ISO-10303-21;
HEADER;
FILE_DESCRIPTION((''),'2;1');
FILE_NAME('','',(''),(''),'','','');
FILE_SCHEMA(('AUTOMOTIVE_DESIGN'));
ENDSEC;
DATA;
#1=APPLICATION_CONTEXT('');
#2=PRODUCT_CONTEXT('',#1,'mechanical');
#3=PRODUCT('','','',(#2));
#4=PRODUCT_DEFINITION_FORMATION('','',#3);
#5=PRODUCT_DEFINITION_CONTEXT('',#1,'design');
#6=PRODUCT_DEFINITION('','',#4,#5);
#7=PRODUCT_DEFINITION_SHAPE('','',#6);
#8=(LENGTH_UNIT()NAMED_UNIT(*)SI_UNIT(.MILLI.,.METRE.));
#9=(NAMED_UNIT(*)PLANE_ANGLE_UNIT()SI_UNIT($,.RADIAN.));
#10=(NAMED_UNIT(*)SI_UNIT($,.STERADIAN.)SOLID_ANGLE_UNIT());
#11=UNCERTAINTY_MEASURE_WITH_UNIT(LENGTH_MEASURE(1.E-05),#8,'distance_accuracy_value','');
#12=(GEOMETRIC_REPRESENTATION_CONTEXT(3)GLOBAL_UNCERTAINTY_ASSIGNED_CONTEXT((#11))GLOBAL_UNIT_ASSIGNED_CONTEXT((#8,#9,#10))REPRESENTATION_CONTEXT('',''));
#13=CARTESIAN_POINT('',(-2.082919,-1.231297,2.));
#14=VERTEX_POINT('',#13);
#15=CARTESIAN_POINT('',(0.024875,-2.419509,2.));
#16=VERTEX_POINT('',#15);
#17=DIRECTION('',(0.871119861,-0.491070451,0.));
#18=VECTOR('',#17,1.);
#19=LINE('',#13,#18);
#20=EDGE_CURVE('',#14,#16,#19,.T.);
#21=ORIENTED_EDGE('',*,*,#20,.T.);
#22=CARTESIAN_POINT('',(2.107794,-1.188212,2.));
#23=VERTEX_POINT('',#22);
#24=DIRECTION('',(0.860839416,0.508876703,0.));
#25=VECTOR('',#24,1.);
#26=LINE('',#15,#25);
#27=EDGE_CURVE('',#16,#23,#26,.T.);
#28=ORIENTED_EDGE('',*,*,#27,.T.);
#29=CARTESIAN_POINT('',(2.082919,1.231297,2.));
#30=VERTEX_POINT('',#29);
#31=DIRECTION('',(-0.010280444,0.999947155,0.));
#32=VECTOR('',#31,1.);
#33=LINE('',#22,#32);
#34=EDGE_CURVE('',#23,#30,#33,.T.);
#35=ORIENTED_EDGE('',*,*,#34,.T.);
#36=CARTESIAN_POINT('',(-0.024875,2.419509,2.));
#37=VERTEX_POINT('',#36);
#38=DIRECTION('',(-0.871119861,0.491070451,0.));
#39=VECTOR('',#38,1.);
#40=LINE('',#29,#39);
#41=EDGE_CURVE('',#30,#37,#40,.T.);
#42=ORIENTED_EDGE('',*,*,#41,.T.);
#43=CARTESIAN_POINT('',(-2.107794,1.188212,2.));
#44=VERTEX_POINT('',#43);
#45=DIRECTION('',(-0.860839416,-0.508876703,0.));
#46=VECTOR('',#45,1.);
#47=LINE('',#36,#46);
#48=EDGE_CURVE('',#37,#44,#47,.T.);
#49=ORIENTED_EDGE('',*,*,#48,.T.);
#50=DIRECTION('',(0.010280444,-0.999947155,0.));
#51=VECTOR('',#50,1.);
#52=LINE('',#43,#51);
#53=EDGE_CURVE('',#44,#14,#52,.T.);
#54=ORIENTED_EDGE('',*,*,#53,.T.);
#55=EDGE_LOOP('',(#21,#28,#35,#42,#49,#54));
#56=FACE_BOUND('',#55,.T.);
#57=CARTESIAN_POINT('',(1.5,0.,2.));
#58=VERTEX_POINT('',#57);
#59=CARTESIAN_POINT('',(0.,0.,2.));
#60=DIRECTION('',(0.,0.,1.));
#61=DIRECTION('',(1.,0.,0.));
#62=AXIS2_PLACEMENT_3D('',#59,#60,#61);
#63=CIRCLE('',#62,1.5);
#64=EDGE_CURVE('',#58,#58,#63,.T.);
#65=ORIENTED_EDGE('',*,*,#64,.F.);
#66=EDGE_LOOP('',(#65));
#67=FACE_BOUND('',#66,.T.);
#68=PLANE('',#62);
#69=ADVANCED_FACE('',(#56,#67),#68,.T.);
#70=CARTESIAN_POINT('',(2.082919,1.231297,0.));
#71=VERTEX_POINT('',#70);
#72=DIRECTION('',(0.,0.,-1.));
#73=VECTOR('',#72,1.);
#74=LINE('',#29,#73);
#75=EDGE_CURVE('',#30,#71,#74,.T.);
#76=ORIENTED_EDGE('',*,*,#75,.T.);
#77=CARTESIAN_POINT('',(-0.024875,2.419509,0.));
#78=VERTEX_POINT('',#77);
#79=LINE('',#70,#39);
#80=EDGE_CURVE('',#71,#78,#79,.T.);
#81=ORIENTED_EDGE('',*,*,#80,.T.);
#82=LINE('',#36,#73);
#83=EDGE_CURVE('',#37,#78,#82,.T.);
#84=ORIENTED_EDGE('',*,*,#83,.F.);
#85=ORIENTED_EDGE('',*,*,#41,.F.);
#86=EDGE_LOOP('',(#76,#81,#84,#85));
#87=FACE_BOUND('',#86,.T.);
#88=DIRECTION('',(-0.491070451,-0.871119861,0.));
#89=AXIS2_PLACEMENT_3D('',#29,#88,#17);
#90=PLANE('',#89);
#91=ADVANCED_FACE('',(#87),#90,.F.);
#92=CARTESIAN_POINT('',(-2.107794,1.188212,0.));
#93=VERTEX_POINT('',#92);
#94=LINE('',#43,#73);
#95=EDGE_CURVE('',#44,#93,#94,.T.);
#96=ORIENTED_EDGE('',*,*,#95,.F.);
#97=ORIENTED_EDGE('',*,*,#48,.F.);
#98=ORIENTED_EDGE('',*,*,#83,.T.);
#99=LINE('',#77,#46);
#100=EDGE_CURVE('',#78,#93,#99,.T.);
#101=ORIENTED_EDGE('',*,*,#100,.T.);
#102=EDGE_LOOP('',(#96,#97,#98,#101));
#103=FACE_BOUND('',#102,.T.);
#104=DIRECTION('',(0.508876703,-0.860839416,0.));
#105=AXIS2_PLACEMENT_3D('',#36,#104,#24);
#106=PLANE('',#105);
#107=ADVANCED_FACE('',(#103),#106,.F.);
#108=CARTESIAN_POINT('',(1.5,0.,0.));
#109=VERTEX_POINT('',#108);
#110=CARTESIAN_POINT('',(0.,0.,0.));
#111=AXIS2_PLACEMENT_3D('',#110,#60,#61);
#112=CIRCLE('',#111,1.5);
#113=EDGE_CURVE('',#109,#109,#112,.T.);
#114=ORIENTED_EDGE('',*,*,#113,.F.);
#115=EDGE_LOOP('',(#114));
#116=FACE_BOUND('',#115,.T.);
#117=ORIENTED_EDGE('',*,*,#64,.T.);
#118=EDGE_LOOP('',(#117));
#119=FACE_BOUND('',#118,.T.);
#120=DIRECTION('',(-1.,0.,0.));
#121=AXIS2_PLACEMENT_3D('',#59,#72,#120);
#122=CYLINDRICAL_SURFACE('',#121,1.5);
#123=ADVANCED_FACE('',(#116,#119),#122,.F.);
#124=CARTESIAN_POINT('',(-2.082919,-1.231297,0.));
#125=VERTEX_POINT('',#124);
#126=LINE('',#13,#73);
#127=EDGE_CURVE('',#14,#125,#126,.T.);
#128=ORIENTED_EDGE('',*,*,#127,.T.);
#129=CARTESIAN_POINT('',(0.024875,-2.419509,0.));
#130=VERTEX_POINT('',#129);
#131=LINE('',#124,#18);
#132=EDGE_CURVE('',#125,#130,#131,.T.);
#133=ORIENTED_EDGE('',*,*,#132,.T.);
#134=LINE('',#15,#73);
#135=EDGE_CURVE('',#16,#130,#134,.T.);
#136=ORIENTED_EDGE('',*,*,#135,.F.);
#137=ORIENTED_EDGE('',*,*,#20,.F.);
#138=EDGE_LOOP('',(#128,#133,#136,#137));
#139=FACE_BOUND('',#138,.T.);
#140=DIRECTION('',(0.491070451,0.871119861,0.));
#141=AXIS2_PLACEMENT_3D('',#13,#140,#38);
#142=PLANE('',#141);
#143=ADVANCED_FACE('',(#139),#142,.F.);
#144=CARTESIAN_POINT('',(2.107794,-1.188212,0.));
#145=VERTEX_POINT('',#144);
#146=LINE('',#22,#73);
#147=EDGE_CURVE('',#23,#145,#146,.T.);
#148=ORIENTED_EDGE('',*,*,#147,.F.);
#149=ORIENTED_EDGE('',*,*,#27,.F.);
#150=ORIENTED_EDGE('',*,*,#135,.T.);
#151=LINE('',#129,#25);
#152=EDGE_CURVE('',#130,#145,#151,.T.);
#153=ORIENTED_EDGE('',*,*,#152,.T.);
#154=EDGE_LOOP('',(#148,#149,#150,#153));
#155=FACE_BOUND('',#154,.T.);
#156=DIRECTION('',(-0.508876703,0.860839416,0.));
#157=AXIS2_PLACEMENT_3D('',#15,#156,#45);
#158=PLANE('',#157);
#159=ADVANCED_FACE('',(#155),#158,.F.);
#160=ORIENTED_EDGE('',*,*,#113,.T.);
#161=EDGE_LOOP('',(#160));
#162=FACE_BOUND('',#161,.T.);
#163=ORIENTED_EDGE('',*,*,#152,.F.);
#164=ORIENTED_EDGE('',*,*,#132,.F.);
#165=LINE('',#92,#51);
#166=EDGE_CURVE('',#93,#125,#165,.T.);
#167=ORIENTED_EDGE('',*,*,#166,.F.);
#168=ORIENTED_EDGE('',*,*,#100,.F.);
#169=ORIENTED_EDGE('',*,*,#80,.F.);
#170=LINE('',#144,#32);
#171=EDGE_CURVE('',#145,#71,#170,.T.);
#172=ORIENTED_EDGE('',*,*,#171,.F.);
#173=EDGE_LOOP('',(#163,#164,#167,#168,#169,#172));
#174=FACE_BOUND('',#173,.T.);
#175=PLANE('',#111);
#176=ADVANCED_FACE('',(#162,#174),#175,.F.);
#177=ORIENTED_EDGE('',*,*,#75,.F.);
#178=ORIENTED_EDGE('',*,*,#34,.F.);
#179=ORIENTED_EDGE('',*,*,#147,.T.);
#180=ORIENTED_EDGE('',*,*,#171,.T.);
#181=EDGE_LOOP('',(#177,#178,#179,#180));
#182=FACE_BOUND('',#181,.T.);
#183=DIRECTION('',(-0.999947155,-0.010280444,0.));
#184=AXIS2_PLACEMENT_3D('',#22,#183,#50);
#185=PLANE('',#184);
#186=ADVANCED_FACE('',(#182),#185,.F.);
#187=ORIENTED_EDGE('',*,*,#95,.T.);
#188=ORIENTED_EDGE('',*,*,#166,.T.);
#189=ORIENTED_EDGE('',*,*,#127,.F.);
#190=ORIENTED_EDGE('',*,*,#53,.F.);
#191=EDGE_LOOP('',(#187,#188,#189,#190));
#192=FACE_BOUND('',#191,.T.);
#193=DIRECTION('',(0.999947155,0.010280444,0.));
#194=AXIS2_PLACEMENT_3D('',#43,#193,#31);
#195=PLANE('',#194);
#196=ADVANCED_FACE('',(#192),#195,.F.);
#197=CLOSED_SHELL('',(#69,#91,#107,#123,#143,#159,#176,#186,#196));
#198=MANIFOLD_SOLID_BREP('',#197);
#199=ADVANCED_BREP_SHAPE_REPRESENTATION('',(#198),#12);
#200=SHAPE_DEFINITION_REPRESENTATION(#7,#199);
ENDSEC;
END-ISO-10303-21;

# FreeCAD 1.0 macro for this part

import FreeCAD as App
import Part
import Sketcher
from FreeCAD import Vector
Q = App.Units.Quantity


def add_polygon(sketch, points):
    """Adds a closed chain of lines whose ends are joined by coincident constraints."""
    first, n = sketch.GeometryCount, len(points)
    for a, b in zip(points, points[1:] + points[:1]):
        sketch.addGeometry(Part.LineSegment(App.Vector(*a, 0), App.Vector(*b, 0)), False)
    for i in range(n):
        sketch.addConstraint(Sketcher.Constraint("Coincident", first + i, 2, first + (i + 1) % n, 1))

doc = App.newDocument("Part")
body = doc.addObject("PartDesign::Body", "Body")

# Sketch on XY plane
sketch1 = body.newObject("Sketcher::SketchObject", "Sketch")
sketch1.AttachmentSupport = (doc.getObject("XY_Plane"), [""])
sketch1.MapMode = "FlatFace"
add_polygon(sketch1, [(2.082919, 1.231297), (-0.024875, 2.419509), (-2.107794, 1.188212), (-2.082919, -1.231297), (0.024875, -2.419509), (2.107794, -1.188212)])  # lines 0-5
sketch1.addGeometry(Part.Circle(Vector(0, 0, 0), Vector(0, 0, 1), 1.5), False)  # 6
sketch1.addConstraint([
    Sketcher.Constraint("Coincident", 6, 3, -1, 1),
    Sketcher.Constraint("Symmetric", 0, 2, 3, 2, -1, 1),
    Sketcher.Constraint("Symmetric", 1, 2, 4, 2, -1, 1),
    Sketcher.Constraint("Symmetric", 2, 2, 5, 2, -1, 1),
    Sketcher.Constraint("Equal", 0, 1),
    Sketcher.Constraint("Equal", 1, 2),
    Sketcher.Constraint("Diameter", 6, Q("3 mm")),
    Sketcher.Constraint("DistanceY", -1, 1, 0, 2, Q("2.419509 mm")),
    Sketcher.Constraint("DistanceX", 2, 2, -1, 1, Q("2.082919 mm")),
    Sketcher.Constraint("DistanceX", 1, 2, 0, 2, Q("2.082919 mm")),
    Sketcher.Constraint("DistanceY", 2, 2, 1, 2, Q("2.419509 mm")),
])
pad1 = body.newObject("PartDesign::Pad", "Pad")
pad1.Profile = sketch1
pad1.Length = 2

doc.recompute()
